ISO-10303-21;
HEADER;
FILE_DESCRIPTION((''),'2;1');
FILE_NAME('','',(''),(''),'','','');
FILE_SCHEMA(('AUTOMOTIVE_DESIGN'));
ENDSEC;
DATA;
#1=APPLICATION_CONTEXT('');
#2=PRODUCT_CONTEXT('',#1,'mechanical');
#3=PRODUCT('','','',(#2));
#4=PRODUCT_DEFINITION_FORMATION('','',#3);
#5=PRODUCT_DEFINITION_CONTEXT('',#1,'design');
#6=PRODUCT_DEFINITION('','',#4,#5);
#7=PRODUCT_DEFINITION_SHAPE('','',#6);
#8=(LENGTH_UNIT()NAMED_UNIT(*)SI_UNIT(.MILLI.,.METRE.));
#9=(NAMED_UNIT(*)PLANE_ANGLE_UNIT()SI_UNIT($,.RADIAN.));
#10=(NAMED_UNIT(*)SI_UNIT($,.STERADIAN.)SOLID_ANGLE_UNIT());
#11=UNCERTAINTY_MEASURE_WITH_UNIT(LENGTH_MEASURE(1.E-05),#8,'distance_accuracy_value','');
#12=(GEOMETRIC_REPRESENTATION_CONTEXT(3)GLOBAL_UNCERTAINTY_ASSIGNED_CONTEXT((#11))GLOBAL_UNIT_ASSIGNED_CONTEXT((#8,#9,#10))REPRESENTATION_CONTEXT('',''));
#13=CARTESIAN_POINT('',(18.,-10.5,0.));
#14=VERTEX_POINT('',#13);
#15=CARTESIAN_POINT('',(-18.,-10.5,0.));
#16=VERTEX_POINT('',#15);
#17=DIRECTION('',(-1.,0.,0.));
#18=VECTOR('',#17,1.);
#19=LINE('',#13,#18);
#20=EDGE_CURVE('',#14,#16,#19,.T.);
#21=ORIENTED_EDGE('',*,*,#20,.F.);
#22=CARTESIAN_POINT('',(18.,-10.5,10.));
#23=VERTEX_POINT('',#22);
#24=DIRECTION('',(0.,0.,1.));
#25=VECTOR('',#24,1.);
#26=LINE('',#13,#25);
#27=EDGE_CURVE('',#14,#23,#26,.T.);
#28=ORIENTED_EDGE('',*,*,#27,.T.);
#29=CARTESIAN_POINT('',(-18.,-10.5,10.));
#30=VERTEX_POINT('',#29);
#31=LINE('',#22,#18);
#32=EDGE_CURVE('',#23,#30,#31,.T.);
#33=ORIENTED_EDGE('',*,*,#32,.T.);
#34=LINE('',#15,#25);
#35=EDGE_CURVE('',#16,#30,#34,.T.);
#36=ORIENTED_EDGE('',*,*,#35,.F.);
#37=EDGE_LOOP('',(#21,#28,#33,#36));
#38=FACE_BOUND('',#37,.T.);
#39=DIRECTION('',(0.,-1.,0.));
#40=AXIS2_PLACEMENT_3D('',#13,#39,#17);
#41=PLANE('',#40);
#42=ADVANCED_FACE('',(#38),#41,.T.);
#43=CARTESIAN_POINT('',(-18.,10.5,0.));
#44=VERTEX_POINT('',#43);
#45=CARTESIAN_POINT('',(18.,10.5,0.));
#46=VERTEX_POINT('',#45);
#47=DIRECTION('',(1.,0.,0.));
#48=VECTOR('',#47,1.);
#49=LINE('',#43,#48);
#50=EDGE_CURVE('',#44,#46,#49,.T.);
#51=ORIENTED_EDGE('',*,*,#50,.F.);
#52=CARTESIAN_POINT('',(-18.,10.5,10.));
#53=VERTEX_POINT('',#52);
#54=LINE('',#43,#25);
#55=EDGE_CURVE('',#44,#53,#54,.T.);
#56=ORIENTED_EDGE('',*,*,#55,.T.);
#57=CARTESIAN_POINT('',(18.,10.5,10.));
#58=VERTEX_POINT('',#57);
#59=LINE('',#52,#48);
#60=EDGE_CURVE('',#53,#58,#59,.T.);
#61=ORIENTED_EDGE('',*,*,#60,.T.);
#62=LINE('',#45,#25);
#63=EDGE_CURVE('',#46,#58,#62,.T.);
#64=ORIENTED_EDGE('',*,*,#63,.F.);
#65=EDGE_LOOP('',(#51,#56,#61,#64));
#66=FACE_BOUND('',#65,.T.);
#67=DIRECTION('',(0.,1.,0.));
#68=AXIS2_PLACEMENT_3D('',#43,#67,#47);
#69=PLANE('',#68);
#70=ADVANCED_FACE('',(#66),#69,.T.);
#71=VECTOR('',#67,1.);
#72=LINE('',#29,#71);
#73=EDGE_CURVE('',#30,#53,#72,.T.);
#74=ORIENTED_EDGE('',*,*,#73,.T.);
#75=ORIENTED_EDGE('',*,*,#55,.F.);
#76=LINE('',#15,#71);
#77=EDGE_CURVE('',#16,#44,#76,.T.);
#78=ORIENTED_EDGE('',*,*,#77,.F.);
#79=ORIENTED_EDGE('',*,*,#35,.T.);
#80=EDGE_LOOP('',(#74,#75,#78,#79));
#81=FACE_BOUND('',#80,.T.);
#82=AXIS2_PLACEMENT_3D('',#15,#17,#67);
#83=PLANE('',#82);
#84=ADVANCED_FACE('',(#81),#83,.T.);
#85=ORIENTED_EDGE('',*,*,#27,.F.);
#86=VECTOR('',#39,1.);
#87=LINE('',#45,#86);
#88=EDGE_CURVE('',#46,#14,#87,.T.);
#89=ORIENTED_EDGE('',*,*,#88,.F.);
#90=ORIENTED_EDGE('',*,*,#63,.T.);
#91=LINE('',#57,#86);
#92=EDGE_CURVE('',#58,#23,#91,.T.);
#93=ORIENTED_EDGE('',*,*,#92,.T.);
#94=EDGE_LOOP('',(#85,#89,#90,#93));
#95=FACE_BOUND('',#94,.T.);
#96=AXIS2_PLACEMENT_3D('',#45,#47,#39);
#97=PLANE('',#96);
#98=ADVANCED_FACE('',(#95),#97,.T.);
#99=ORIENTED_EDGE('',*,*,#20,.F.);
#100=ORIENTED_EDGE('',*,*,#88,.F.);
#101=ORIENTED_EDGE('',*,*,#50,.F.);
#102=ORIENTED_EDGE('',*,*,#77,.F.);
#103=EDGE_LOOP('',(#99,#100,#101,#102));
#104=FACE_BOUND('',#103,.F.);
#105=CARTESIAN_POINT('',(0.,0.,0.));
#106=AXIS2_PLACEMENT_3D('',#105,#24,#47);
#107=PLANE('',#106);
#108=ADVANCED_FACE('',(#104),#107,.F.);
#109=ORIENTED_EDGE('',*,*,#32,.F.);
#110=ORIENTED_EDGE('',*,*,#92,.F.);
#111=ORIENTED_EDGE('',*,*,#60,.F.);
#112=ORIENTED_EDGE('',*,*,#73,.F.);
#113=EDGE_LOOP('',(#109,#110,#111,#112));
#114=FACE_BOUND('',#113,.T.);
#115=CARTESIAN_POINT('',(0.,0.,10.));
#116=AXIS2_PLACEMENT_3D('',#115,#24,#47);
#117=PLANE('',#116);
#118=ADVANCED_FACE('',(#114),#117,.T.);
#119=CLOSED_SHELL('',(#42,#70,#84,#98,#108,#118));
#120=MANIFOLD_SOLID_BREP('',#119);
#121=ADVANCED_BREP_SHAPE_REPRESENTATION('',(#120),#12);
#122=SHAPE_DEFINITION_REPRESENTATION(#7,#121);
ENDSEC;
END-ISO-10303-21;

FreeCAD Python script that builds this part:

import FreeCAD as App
import Part
import Sketcher
from FreeCAD import Vector
Q = App.Units.Quantity


def add_polygon(sketch, points):
    """Adds a closed chain of lines whose ends are joined by coincident constraints."""
    first, n = sketch.GeometryCount, len(points)
    for a, b in zip(points, points[1:] + points[:1]):
        sketch.addGeometry(Part.LineSegment(App.Vector(*a, 0), App.Vector(*b, 0)), False)
    for i in range(n):
        sketch.addConstraint(Sketcher.Constraint("Coincident", first + i, 2, first + (i + 1) % n, 1))

doc = App.newDocument("Part")
params = doc.addObject("Spreadsheet::Sheet", "Params")
for row, (alias, value) in enumerate([
    ("sketch1_width", "36 mm"),
    ("sketch1_height", "21 mm"),
    ("pad1_length", "10 mm"),
], start=1):
    params.set(f"A{row}", alias)
    params.set(f"B{row}", "=" + value)
    params.setAlias(f"B{row}", alias)

body = doc.addObject("PartDesign::Body", "Body")

sketch1 = doc.addObject("Sketcher::SketchObject", "Sketch")
body.addObject(sketch1)
sketch1.AttachmentSupport = (doc.XY_Plane, [""])
sketch1.MapMode = "FlatFace"
add_polygon(sketch1, [(18, 10), (-18, 10), (-18, -10), (18, -10)])
sketch1.addConstraint(Sketcher.Constraint("Horizontal", 0))
sketch1.addConstraint(Sketcher.Constraint("Vertical", 1))
sketch1.addConstraint(Sketcher.Constraint("Horizontal", 2))
sketch1.addConstraint(Sketcher.Constraint("Vertical", 3))
sketch1.addConstraint(Sketcher.Constraint("Symmetric", 0, 2, 2, 2, -1, 1))
sketch1.addConstraint(Sketcher.Constraint("DistanceX", 0, 2, 0, 1, Q("36 mm")))
sketch1.addConstraint(Sketcher.Constraint("DistanceY", 1, 2, 1, 1, Q("21 mm")))
sketch1.setExpression("Constraints[9]", "Params.sketch1_width")
sketch1.setExpression("Constraints[10]", "Params.sketch1_height")
pad1 = doc.addObject("PartDesign::Pad", "Pad")
body.addObject(pad1)
pad1.Profile = sketch1
pad1.setExpression("Length", "Params.pad1_length")

doc.recompute()
